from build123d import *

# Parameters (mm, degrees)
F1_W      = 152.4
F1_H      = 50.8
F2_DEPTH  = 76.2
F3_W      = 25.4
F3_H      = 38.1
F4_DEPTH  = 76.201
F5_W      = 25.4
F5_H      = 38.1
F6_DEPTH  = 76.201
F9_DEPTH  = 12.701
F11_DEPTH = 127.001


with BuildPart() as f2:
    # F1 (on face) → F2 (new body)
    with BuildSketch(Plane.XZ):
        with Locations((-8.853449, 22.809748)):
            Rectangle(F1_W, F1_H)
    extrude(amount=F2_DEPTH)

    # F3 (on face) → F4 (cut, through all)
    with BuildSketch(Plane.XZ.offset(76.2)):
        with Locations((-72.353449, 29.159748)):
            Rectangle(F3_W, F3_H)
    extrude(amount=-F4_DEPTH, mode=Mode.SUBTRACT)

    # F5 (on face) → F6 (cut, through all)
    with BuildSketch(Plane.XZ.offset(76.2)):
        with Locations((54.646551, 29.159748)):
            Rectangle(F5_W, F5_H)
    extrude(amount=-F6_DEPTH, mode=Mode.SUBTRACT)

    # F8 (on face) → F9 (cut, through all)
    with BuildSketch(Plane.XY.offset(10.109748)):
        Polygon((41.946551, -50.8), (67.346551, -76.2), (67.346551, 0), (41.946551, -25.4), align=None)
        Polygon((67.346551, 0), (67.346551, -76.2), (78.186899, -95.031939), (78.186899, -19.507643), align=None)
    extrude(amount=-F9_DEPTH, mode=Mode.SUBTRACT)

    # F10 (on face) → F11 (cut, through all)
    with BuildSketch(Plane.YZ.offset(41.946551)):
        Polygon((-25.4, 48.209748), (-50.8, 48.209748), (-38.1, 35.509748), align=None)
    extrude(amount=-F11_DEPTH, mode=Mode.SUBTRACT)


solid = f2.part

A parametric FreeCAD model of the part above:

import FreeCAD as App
import Part
import Sketcher

V = App.Vector
Q = App.Units.Quantity


def add_polygon(sketch, points):
    """Adds a closed chain of lines whose ends are joined by coincident constraints."""
    first, n = sketch.GeometryCount, len(points)
    for a, b in zip(points, points[1:] + points[:1]):
        sketch.addGeometry(Part.LineSegment(App.Vector(*a, 0), App.Vector(*b, 0)), False)
    for i in range(n):
        sketch.addConstraint(Sketcher.Constraint("Coincident", first + i, 2, first + (i + 1) % n, 1))

doc = App.newDocument("Part")
body = doc.addObject("PartDesign::Body", "Body")

sketch1 = body.newObject("Sketcher::SketchObject", "Sketch")
sketch1.AttachmentSupport = (doc.getObject("XZ_Plane"), [""])
sketch1.MapMode = "FlatFace"
add_polygon(sketch1, [(-85, 48), (-85, -3), (67, -3), (67, 48)])
sketch1.addConstraint(Sketcher.Constraint("Vertical", 0))
sketch1.addConstraint(Sketcher.Constraint("Horizontal", 1))
sketch1.addConstraint(Sketcher.Constraint("Vertical", 2))
sketch1.addConstraint(Sketcher.Constraint("Horizontal", 3))
sketch1.addConstraint(Sketcher.Constraint("DistanceX", 1, 1, 1, 2, Q("6 in")))
sketch1.addConstraint(Sketcher.Constraint("DistanceY", 0, 2, 0, 1, Q("2 in")))
sketch1.addConstraint(Sketcher.Constraint("DistanceX", 0, 2, -1, 1, 85.053449))
sketch1.addConstraint(Sketcher.Constraint("DistanceY", 0, 2, -1, 1, 2.590252))
pad1 = body.newObject("PartDesign::Pad", "Pad")
pad1.Profile = sketch1
pad1.Length = Q("3 in")

sketch2 = body.newObject("Sketcher::SketchObject", "Sketch001")
sketch2.AttachmentSupport = (doc.getObject("XZ_Plane"), [""])
sketch2.MapMode = "FlatFace"
sketch2.AttachmentOffset = App.Placement(V(0, 0, 3 * 25.4), App.Rotation())
add_polygon(sketch2, [(-85, 48), (-85, 10), (-60, 10), (-60, 48)])
sketch2.addConstraint(Sketcher.Constraint("Vertical", 0))
sketch2.addConstraint(Sketcher.Constraint("Horizontal", 1))
sketch2.addConstraint(Sketcher.Constraint("Vertical", 2))
sketch2.addConstraint(Sketcher.Constraint("Horizontal", 3))
sketch2.addConstraint(Sketcher.Constraint("DistanceX", 1, 1, 1, 2, Q("1 in")))
sketch2.addConstraint(Sketcher.Constraint("DistanceY", 0, 2, 0, 1, Q("1.5 in")))
sketch2.addConstraint(Sketcher.Constraint("DistanceX", 0, 2, -1, 1, 85.053449))
sketch2.addConstraint(Sketcher.Constraint("DistanceY", -1, 1, 0, 2, 10.109748))
pocket1 = body.newObject("PartDesign::Pocket", "Pocket")
pocket1.Profile = sketch2
pocket1.Type = "ThroughAll"

sketch3 = body.newObject("Sketcher::SketchObject", "Sketch002")
sketch3.AttachmentSupport = (doc.getObject("XZ_Plane"), [""])
sketch3.MapMode = "FlatFace"
sketch3.AttachmentOffset = App.Placement(V(0, 0, 3 * 25.4), App.Rotation())
add_polygon(sketch3, [(42, 48), (42, 10), (67, 10), (67, 48)])
sketch3.addConstraint(Sketcher.Constraint("Vertical", 0))
sketch3.addConstraint(Sketcher.Constraint("Horizontal", 1))
sketch3.addConstraint(Sketcher.Constraint("Vertical", 2))
sketch3.addConstraint(Sketcher.Constraint("Horizontal", 3))
sketch3.addConstraint(Sketcher.Constraint("DistanceX", 1, 1, 1, 2, Q("1 in")))
sketch3.addConstraint(Sketcher.Constraint("DistanceY", 0, 2, 0, 1, Q("1.5 in")))
sketch3.addConstraint(Sketcher.Constraint("DistanceX", -1, 1, 0, 2, 41.946551))
sketch3.addConstraint(Sketcher.Constraint("DistanceY", -1, 1, 0, 2, 10.109748))
pocket2 = body.newObject("PartDesign::Pocket", "Pocket001")
pocket2.Profile = sketch3
pocket2.Type = "ThroughAll"

sketch4 = body.newObject("Sketcher::SketchObject", "Sketch003")
sketch4.AttachmentSupport = (doc.getObject("XY_Plane"), [""])
sketch4.MapMode = "FlatFace"
sketch4.AttachmentOffset = App.Placement(V(0, 0, 10.109748), App.Rotation())
add_polygon(sketch4, [(42, -51), (67, -76), (78, -95), (78, -20), (67, 0), (42, -25)])
sketch4.addConstraint(Sketcher.Constraint("Vertical", 2))
sketch4.addConstraint(Sketcher.Constraint("Vertical", 5))
sketch4.addConstraint(Sketcher.Constraint("PointOnObject", 3, 2, -1))
sketch4.addConstraint(Sketcher.Constraint("Perpendicular", 0, 4))
sketch4.addConstraint(Sketcher.Constraint("Vertical", 0, 2, 3, 2))
sketch4.addConstraint(Sketcher.Constraint("Equal", 0, 4))
sketch4.addConstraint(Sketcher.Constraint("DistanceY", 5, 2, 5, 1, Q("1 in")))
sketch4.addConstraint(Sketcher.Constraint("DistanceY", 0, 2, -1, 1, Q("3 in")))
sketch4.addConstraint(Sketcher.Constraint("DistanceX", -1, 1, 1, 2, 78.186899))
sketch4.addConstraint(Sketcher.Constraint("Distance", 1, 21.72913))
sketch4.addConstraint(Sketcher.Constraint("DistanceY", 2, 1, 2, 2, 75.524296))
sketch4.addConstraint(Sketcher.Constraint("DistanceX", -1, 1, 0, 2, 67.346551))
pocket3 = body.newObject("PartDesign::Pocket", "Pocket002")
pocket3.Profile = sketch4
pocket3.Type = "ThroughAll"

sketch5 = body.newObject("Sketcher::SketchObject", "Sketch004")
sketch5.AttachmentSupport = (doc.getObject("YZ_Plane"), [""])
sketch5.MapMode = "FlatFace"
sketch5.AttachmentOffset = App.Placement(V(0, 0, 41.946551), App.Rotation())
add_polygon(sketch5, [(-25, 48), (-51, 48), (-38, 36)])
sketch5.addConstraint(Sketcher.Constraint("Horizontal", 0))
sketch5.addConstraint(Sketcher.Constraint("Perpendicular", 1, 2))
sketch5.addConstraint(Sketcher.Constraint("Equal", 1, 2))
sketch5.addConstraint(Sketcher.Constraint("DistanceX", 0, 2, 0, 1, Q("1 in")))
sketch5.addConstraint(Sketcher.Constraint("DistanceX", 0, 2, -1, 1, Q("2 in")))
sketch5.addConstraint(Sketcher.Constraint("DistanceY", -1, 1, 1, 2, 35.509748))
pocket4 = body.newObject("PartDesign::Pocket", "Pocket003")
pocket4.Profile = sketch5
pocket4.Type = "ThroughAll"

doc.recompute()
